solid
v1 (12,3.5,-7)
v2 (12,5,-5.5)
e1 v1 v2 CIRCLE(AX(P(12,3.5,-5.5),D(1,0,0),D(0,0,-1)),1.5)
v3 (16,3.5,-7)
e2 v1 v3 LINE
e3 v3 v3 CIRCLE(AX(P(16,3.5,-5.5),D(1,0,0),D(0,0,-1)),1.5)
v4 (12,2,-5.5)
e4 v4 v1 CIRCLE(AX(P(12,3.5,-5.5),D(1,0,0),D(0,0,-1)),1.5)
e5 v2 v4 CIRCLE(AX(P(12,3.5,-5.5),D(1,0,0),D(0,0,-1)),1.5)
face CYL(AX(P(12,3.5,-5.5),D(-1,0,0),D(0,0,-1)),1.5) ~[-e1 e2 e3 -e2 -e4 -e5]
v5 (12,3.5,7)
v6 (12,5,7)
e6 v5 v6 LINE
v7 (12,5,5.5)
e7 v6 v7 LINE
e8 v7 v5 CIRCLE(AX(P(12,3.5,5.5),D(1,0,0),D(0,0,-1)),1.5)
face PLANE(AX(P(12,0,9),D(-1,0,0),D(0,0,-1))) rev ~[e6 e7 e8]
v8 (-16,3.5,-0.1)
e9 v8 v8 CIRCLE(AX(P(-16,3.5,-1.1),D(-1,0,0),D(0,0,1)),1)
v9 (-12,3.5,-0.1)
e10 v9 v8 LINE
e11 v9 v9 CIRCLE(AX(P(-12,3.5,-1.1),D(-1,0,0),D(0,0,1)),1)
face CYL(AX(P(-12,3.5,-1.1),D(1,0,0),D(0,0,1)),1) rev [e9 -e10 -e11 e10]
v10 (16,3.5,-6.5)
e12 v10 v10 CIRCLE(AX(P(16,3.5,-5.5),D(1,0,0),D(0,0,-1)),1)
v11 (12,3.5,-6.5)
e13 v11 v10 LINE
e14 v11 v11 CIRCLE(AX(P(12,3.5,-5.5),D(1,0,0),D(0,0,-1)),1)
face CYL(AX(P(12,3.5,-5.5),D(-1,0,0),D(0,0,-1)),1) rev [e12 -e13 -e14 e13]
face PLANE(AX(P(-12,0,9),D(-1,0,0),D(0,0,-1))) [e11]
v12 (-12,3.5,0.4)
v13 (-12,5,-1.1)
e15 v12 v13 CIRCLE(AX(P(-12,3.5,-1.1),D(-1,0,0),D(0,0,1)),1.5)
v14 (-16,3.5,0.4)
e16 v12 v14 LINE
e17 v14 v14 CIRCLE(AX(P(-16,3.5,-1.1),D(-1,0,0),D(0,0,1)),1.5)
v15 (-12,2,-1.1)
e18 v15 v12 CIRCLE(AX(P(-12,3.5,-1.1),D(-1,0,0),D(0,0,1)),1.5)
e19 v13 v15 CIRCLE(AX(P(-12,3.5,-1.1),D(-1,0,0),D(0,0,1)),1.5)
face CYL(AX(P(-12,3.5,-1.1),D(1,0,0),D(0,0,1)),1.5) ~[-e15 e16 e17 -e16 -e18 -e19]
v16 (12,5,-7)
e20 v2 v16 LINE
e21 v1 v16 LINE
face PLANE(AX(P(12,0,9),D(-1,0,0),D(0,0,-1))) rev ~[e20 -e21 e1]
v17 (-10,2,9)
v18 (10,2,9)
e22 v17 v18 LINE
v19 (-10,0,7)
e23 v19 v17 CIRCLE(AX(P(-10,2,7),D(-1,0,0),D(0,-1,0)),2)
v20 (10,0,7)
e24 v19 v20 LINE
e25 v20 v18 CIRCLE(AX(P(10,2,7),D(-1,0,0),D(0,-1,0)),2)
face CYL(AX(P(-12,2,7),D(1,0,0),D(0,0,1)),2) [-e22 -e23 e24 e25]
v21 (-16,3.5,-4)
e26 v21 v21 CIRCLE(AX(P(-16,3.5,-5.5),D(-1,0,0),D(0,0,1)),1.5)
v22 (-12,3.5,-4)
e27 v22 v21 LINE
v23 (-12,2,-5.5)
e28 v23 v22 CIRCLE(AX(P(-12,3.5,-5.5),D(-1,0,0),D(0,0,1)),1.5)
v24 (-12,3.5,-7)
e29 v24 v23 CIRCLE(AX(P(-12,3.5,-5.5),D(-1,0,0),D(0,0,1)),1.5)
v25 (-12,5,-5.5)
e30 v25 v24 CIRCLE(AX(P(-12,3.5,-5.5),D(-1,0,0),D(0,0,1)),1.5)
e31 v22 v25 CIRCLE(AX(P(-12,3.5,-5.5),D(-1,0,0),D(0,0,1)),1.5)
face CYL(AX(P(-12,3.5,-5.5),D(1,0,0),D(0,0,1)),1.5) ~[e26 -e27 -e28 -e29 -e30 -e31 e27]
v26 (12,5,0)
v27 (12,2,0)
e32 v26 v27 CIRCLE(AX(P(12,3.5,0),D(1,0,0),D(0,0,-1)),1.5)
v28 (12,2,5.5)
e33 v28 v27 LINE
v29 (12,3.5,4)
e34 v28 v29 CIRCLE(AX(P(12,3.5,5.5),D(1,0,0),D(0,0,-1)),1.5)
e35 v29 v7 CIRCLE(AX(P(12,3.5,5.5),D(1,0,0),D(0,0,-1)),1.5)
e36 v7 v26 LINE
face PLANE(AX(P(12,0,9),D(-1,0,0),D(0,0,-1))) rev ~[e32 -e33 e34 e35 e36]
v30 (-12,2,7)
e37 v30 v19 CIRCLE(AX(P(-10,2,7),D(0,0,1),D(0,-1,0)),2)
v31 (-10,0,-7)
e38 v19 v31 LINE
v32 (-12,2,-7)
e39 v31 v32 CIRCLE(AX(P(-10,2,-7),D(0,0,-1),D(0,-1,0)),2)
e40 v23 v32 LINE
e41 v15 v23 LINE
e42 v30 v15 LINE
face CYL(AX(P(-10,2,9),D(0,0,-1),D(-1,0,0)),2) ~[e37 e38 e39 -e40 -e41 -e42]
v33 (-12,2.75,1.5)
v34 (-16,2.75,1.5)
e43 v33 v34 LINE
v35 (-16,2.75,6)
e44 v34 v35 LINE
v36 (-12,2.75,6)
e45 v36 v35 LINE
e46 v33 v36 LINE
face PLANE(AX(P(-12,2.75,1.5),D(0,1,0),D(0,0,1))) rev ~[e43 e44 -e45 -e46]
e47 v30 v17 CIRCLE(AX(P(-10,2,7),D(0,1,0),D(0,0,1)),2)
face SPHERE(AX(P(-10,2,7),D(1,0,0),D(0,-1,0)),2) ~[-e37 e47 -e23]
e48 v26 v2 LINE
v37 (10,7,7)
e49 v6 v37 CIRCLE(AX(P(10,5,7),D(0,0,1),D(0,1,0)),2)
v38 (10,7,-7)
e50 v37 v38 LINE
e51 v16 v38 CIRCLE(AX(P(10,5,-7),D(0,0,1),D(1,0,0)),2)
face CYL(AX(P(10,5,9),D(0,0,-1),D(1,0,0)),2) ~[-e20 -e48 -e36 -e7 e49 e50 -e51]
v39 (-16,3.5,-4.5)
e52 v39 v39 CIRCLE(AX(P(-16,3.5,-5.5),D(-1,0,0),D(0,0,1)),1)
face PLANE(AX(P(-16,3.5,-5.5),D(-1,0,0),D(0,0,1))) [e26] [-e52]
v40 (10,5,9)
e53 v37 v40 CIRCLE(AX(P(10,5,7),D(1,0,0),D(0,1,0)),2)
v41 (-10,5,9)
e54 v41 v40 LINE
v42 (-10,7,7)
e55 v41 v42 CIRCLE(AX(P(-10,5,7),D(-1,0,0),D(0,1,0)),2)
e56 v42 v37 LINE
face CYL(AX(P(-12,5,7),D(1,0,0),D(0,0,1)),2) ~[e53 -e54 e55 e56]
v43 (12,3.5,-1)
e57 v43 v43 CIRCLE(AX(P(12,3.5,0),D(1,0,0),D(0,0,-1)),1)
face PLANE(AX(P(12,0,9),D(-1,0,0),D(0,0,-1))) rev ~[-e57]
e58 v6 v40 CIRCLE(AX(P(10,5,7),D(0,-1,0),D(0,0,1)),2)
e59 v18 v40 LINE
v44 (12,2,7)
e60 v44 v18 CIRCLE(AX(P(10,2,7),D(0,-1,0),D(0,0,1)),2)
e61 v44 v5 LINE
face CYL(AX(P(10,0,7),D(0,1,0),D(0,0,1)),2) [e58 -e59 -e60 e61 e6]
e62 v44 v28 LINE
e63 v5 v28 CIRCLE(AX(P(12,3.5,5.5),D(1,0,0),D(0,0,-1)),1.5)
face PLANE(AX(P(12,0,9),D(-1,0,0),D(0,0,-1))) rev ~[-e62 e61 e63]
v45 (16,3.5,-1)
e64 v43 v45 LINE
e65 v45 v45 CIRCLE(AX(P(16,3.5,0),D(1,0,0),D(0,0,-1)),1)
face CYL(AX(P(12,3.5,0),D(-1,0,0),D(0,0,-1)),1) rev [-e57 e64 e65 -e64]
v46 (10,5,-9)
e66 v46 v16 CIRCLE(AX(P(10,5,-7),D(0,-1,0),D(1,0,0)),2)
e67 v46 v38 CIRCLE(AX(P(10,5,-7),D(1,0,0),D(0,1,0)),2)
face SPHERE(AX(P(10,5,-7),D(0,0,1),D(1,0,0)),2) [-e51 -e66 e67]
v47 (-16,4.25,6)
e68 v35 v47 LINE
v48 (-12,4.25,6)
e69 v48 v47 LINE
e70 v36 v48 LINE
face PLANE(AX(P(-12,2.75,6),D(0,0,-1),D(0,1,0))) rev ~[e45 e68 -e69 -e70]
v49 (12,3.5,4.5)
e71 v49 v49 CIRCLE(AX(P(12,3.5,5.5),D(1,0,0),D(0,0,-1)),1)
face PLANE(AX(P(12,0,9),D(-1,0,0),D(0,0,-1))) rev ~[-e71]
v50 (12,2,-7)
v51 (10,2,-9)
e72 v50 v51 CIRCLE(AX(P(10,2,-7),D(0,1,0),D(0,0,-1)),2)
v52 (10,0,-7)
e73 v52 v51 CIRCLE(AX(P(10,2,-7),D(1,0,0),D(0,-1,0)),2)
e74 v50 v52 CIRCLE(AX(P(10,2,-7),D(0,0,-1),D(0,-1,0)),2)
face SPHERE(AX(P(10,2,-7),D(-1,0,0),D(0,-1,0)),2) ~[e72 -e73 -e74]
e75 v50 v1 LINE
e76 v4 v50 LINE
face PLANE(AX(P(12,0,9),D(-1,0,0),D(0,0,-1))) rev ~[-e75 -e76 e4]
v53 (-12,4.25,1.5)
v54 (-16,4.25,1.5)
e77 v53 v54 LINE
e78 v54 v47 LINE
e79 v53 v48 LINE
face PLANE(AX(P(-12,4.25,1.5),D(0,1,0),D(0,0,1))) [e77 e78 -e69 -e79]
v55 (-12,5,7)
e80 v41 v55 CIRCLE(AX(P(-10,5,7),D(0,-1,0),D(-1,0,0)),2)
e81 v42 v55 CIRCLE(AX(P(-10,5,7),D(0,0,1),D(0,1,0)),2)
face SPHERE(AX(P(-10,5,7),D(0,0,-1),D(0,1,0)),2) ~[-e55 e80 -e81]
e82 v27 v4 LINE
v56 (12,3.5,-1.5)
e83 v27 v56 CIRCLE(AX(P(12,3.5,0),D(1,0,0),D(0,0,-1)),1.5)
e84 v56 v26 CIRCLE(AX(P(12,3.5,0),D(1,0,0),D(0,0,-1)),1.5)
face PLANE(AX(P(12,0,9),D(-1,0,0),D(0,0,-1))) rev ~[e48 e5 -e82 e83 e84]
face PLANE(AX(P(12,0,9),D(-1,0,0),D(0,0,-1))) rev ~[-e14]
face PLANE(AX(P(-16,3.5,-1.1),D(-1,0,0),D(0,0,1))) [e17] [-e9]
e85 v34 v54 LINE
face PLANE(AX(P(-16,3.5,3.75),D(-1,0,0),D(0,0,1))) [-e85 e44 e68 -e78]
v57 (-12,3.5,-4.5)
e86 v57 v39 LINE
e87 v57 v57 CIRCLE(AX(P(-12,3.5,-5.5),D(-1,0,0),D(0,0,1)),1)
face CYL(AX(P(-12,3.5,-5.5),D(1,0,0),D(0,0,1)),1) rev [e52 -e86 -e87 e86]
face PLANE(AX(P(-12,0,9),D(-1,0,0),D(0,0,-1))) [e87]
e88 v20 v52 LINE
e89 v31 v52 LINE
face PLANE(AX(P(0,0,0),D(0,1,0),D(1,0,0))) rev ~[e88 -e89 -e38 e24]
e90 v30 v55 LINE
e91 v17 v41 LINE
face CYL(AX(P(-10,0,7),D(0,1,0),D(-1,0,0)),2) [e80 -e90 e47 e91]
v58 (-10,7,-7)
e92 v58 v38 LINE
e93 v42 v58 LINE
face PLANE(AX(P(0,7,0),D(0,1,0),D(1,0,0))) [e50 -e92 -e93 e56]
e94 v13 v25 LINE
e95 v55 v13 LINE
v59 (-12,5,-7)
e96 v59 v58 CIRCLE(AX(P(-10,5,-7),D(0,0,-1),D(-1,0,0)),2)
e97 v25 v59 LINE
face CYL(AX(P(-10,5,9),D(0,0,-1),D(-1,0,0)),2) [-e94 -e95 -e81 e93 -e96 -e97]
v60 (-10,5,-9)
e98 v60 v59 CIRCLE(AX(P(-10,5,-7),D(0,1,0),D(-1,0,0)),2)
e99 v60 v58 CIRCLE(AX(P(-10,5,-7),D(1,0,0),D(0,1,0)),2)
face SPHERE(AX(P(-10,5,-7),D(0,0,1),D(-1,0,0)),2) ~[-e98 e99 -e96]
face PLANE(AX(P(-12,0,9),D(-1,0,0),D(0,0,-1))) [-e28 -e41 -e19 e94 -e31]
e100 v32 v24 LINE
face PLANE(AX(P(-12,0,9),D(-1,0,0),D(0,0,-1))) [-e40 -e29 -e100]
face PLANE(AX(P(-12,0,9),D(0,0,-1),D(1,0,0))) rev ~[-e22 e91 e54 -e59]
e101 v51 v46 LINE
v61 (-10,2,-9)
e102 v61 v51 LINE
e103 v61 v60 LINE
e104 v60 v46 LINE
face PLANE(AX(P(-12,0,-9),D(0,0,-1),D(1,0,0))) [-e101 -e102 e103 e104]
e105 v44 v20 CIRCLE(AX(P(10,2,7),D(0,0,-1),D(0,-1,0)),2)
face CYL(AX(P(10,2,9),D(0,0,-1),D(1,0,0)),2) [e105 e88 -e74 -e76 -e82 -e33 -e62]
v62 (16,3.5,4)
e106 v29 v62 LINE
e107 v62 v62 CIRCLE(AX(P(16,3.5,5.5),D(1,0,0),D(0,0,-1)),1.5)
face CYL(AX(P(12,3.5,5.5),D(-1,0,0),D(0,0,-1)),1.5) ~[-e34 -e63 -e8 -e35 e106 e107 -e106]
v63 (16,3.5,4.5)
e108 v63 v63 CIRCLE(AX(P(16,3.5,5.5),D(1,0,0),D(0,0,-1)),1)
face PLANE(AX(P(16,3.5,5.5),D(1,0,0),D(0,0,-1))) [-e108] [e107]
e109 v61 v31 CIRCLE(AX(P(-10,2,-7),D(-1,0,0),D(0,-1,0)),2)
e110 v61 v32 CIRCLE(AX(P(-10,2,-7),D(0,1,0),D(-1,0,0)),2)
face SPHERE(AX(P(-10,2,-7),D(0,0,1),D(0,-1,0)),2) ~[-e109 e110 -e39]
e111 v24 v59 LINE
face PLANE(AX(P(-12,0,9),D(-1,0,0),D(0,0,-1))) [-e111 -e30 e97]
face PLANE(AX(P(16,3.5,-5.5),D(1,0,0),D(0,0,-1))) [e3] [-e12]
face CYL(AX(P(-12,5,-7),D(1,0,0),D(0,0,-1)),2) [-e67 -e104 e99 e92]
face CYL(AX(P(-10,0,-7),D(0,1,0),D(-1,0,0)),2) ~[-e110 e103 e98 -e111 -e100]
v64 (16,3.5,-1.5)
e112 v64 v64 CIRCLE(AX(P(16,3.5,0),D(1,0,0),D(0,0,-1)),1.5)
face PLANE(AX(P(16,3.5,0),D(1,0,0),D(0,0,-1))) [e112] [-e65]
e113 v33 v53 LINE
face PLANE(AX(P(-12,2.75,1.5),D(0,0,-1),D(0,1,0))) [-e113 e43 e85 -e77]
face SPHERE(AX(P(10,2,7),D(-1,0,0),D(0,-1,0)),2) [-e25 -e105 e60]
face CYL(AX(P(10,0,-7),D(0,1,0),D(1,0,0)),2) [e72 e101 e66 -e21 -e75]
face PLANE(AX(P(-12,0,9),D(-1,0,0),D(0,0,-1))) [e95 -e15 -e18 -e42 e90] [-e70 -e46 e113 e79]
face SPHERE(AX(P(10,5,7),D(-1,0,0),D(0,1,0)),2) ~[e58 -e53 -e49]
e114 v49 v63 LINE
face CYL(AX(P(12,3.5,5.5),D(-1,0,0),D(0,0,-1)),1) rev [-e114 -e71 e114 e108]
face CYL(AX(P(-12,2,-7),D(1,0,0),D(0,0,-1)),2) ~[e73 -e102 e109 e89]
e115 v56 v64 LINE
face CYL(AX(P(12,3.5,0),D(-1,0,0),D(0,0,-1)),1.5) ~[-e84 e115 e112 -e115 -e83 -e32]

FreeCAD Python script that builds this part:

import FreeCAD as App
import Part
import Sketcher

doc = App.newDocument("Part")
body = doc.addObject("PartDesign::Body", "Body")

# Sketch on XZ plane
sketch1 = body.newObject("Sketcher::SketchObject", "Sketch")
sketch1.AttachmentSupport = (doc.getObject("XZ_Plane"), [""])
sketch1.MapMode = "FlatFace"
sketch1.addGeometry(Part.LineSegment(App.Vector(-12, -9, 0), App.Vector(-12, 9, 0)), False)
sketch1.addGeometry(Part.LineSegment(App.Vector(-12, 9, 0), App.Vector(12, 9, 0)), False)
sketch1.addGeometry(Part.LineSegment(App.Vector(12, 9, 0), App.Vector(12, -9, 0)), False)
sketch1.addGeometry(Part.LineSegment(App.Vector(12, -9, 0), App.Vector(-12, -9, 0)), False)
sketch1.addConstraint(Sketcher.Constraint("Coincident", 0, 2, 1, 1))
sketch1.addConstraint(Sketcher.Constraint("Coincident", 1, 2, 2, 1))
sketch1.addConstraint(Sketcher.Constraint("Coincident", 2, 2, 3, 1))
sketch1.addConstraint(Sketcher.Constraint("Coincident", 3, 2, 0, 1))
sketch1.addConstraint(Sketcher.Constraint("Vertical", 0))
sketch1.addConstraint(Sketcher.Constraint("Horizontal", 1))
sketch1.addConstraint(Sketcher.Constraint("Vertical", 2))
sketch1.addConstraint(Sketcher.Constraint("Horizontal", 3))
sketch1.addConstraint(Sketcher.Constraint("Symmetric", 0, 2, 2, 2, -1, 1))
sketch1.addConstraint(Sketcher.Constraint("DistanceX", 1, 1, 1, 2, 24.0))
sketch1.addConstraint(Sketcher.Constraint("DistanceY", 0, 1, 0, 2, 18.0))
pad1 = body.newObject("PartDesign::Pad", "Pad")
pad1.Profile = sketch1
pad1.Length = 7
pad1.Reversed = True
doc.recompute()

fillet = body.newObject("PartDesign::Fillet", "Fillet")
fillet.Base = (pad1, ["Edge1"])
fillet.UseAllEdges = True
fillet.Radius = 2

# Sketch on YZ plane
sketch2 = body.newObject("Sketcher::SketchObject", "Sketch001")
sketch2.AttachmentSupport = (doc.getObject("YZ_Plane"), [""])
sketch2.MapMode = "FlatFace"
sketch2.AttachmentOffset = App.Placement(App.Vector(0, 0, 12), App.Rotation())
sketch2.addGeometry(Part.Circle(App.Vector(3.5, 5.5, 0), App.Vector(0, 0, 1), 1.5), False)
sketch2.addGeometry(Part.Circle(App.Vector(3.5, 5.5, 0), App.Vector(0, 0, 1), 1), False)
sketch2.addGeometry(Part.Circle(App.Vector(3.5, 0, 0), App.Vector(0, 0, 1), 1.5), False)
sketch2.addGeometry(Part.Circle(App.Vector(3.5, 0, 0), App.Vector(0, 0, 1), 1), False)
sketch2.addGeometry(Part.Circle(App.Vector(3.5, -5.5, 0), App.Vector(0, 0, 1), 1.5), False)
sketch2.addGeometry(Part.Circle(App.Vector(3.5, -5.5, 0), App.Vector(0, 0, 1), 1), False)
sketch2.addConstraint(Sketcher.Constraint("Coincident", 1, 3, 0, 3))
sketch2.addConstraint(Sketcher.Constraint("Coincident", 3, 3, 2, 3))
sketch2.addConstraint(Sketcher.Constraint("Coincident", 5, 3, 4, 3))
sketch2.addConstraint(Sketcher.Constraint("Equal", 0, 2))
sketch2.addConstraint(Sketcher.Constraint("Equal", 1, 3))
sketch2.addConstraint(Sketcher.Constraint("Equal", 2, 4))
sketch2.addConstraint(Sketcher.Constraint("Equal", 3, 5))
sketch2.addConstraint(Sketcher.Constraint("Symmetric", 0, 3, 4, 3, -1))
sketch2.addConstraint(Sketcher.Constraint("PointOnObject", 2, 3, -1))
sketch2.addConstraint(Sketcher.Constraint("Vertical", 1, 3, 2, 3))
sketch2.addConstraint(Sketcher.Constraint("Diameter", 0, 3.0))
sketch2.addConstraint(Sketcher.Constraint("Diameter", 1, 2.0))
sketch2.addConstraint(Sketcher.Constraint("DistanceY", 4, 3, 0, 3, 11.0))
sketch2.addConstraint(Sketcher.Constraint("DistanceX", -1, 1, 0, 3, 3.5))
pad2 = body.newObject("PartDesign::Pad", "Pad001")
pad2.Profile = sketch2
pad2.Length = 4

# Sketch on YZ plane
sketch3 = body.newObject("Sketcher::SketchObject", "Sketch002")
sketch3.AttachmentSupport = (doc.getObject("YZ_Plane"), [""])
sketch3.MapMode = "FlatFace"
sketch3.AttachmentOffset = App.Placement(App.Vector(0, 0, -12), App.Rotation())
sketch3.addGeometry(Part.Circle(App.Vector(3.5, -5.5, 0), App.Vector(0, 0, 1), 1.5), False)
sketch3.addGeometry(Part.Circle(App.Vector(3.5, -5.5, 0), App.Vector(0, 0, 1), 1), False)
sketch3.addGeometry(Part.Circle(App.Vector(3.5, -1.1, 0), App.Vector(0, 0, 1), 1.5), False)
sketch3.addGeometry(Part.Circle(App.Vector(3.5, -1.1, 0), App.Vector(0, 0, 1), 1), False)
sketch3.addGeometry(Part.LineSegment(App.Vector(4.2, 1.5, 0), App.Vector(2.8, 1.5, 0)), False)
sketch3.addGeometry(Part.LineSegment(App.Vector(2.8, 1.5, 0), App.Vector(2.8, 6, 0)), False)
sketch3.addGeometry(Part.LineSegment(App.Vector(2.8, 6, 0), App.Vector(4.2, 6, 0)), False)
sketch3.addGeometry(Part.LineSegment(App.Vector(4.2, 6, 0), App.Vector(4.2, 1.5, 0)), False)
sketch3.addConstraint(Sketcher.Constraint("Coincident", 4, 2, 5, 1))
sketch3.addConstraint(Sketcher.Constraint("Coincident", 5, 2, 6, 1))
sketch3.addConstraint(Sketcher.Constraint("Coincident", 6, 2, 7, 1))
sketch3.addConstraint(Sketcher.Constraint("Coincident", 7, 2, 4, 1))
sketch3.addConstraint(Sketcher.Constraint("Horizontal", 4))
sketch3.addConstraint(Sketcher.Constraint("Vertical", 5))
sketch3.addConstraint(Sketcher.Constraint("Horizontal", 6))
sketch3.addConstraint(Sketcher.Constraint("Vertical", 7))
sketch3.addConstraint(Sketcher.Constraint("Coincident", 1, 3, 0, 3))
sketch3.addConstraint(Sketcher.Constraint("Coincident", 3, 3, 2, 3))
sketch3.addConstraint(Sketcher.Constraint("Equal", 0, 2))
sketch3.addConstraint(Sketcher.Constraint("Equal", 1, 3))
sketch3.addConstraint(Sketcher.Constraint("Vertical", 1, 3, 2, 3))
sketch3.addConstraint(Sketcher.Constraint("Diameter", 0, 3.0))
sketch3.addConstraint(Sketcher.Constraint("Diameter", 1, 2.0))
sketch3.addConstraint(Sketcher.Constraint("DistanceX", 4, 2, 4, 1, 1.5))
sketch3.addConstraint(Sketcher.Constraint("DistanceY", 5, 1, 5, 2, 4.5))
sketch3.addConstraint(Sketcher.Constraint("DistanceY", -1, 1, 5, 2, 6.0))
sketch3.addConstraint(Sketcher.Constraint("DistanceY", 0, 3, 4, 2, 7.0))
sketch3.addConstraint(Sketcher.Constraint("DistanceX", -1, 1, 0, 3, 3.5))
sketch3.addConstraint(Sketcher.Constraint("DistanceY", 2, 3, -1, 1, 1.1))
sketch3.addConstraint(Sketcher.Constraint("DistanceX", -1, 1, 4, 2, 2.75))
pad3 = body.newObject("PartDesign::Pad", "Pad002")
pad3.Profile = sketch3
pad3.Length = 4
pad3.Reversed = True

doc.recompute()
